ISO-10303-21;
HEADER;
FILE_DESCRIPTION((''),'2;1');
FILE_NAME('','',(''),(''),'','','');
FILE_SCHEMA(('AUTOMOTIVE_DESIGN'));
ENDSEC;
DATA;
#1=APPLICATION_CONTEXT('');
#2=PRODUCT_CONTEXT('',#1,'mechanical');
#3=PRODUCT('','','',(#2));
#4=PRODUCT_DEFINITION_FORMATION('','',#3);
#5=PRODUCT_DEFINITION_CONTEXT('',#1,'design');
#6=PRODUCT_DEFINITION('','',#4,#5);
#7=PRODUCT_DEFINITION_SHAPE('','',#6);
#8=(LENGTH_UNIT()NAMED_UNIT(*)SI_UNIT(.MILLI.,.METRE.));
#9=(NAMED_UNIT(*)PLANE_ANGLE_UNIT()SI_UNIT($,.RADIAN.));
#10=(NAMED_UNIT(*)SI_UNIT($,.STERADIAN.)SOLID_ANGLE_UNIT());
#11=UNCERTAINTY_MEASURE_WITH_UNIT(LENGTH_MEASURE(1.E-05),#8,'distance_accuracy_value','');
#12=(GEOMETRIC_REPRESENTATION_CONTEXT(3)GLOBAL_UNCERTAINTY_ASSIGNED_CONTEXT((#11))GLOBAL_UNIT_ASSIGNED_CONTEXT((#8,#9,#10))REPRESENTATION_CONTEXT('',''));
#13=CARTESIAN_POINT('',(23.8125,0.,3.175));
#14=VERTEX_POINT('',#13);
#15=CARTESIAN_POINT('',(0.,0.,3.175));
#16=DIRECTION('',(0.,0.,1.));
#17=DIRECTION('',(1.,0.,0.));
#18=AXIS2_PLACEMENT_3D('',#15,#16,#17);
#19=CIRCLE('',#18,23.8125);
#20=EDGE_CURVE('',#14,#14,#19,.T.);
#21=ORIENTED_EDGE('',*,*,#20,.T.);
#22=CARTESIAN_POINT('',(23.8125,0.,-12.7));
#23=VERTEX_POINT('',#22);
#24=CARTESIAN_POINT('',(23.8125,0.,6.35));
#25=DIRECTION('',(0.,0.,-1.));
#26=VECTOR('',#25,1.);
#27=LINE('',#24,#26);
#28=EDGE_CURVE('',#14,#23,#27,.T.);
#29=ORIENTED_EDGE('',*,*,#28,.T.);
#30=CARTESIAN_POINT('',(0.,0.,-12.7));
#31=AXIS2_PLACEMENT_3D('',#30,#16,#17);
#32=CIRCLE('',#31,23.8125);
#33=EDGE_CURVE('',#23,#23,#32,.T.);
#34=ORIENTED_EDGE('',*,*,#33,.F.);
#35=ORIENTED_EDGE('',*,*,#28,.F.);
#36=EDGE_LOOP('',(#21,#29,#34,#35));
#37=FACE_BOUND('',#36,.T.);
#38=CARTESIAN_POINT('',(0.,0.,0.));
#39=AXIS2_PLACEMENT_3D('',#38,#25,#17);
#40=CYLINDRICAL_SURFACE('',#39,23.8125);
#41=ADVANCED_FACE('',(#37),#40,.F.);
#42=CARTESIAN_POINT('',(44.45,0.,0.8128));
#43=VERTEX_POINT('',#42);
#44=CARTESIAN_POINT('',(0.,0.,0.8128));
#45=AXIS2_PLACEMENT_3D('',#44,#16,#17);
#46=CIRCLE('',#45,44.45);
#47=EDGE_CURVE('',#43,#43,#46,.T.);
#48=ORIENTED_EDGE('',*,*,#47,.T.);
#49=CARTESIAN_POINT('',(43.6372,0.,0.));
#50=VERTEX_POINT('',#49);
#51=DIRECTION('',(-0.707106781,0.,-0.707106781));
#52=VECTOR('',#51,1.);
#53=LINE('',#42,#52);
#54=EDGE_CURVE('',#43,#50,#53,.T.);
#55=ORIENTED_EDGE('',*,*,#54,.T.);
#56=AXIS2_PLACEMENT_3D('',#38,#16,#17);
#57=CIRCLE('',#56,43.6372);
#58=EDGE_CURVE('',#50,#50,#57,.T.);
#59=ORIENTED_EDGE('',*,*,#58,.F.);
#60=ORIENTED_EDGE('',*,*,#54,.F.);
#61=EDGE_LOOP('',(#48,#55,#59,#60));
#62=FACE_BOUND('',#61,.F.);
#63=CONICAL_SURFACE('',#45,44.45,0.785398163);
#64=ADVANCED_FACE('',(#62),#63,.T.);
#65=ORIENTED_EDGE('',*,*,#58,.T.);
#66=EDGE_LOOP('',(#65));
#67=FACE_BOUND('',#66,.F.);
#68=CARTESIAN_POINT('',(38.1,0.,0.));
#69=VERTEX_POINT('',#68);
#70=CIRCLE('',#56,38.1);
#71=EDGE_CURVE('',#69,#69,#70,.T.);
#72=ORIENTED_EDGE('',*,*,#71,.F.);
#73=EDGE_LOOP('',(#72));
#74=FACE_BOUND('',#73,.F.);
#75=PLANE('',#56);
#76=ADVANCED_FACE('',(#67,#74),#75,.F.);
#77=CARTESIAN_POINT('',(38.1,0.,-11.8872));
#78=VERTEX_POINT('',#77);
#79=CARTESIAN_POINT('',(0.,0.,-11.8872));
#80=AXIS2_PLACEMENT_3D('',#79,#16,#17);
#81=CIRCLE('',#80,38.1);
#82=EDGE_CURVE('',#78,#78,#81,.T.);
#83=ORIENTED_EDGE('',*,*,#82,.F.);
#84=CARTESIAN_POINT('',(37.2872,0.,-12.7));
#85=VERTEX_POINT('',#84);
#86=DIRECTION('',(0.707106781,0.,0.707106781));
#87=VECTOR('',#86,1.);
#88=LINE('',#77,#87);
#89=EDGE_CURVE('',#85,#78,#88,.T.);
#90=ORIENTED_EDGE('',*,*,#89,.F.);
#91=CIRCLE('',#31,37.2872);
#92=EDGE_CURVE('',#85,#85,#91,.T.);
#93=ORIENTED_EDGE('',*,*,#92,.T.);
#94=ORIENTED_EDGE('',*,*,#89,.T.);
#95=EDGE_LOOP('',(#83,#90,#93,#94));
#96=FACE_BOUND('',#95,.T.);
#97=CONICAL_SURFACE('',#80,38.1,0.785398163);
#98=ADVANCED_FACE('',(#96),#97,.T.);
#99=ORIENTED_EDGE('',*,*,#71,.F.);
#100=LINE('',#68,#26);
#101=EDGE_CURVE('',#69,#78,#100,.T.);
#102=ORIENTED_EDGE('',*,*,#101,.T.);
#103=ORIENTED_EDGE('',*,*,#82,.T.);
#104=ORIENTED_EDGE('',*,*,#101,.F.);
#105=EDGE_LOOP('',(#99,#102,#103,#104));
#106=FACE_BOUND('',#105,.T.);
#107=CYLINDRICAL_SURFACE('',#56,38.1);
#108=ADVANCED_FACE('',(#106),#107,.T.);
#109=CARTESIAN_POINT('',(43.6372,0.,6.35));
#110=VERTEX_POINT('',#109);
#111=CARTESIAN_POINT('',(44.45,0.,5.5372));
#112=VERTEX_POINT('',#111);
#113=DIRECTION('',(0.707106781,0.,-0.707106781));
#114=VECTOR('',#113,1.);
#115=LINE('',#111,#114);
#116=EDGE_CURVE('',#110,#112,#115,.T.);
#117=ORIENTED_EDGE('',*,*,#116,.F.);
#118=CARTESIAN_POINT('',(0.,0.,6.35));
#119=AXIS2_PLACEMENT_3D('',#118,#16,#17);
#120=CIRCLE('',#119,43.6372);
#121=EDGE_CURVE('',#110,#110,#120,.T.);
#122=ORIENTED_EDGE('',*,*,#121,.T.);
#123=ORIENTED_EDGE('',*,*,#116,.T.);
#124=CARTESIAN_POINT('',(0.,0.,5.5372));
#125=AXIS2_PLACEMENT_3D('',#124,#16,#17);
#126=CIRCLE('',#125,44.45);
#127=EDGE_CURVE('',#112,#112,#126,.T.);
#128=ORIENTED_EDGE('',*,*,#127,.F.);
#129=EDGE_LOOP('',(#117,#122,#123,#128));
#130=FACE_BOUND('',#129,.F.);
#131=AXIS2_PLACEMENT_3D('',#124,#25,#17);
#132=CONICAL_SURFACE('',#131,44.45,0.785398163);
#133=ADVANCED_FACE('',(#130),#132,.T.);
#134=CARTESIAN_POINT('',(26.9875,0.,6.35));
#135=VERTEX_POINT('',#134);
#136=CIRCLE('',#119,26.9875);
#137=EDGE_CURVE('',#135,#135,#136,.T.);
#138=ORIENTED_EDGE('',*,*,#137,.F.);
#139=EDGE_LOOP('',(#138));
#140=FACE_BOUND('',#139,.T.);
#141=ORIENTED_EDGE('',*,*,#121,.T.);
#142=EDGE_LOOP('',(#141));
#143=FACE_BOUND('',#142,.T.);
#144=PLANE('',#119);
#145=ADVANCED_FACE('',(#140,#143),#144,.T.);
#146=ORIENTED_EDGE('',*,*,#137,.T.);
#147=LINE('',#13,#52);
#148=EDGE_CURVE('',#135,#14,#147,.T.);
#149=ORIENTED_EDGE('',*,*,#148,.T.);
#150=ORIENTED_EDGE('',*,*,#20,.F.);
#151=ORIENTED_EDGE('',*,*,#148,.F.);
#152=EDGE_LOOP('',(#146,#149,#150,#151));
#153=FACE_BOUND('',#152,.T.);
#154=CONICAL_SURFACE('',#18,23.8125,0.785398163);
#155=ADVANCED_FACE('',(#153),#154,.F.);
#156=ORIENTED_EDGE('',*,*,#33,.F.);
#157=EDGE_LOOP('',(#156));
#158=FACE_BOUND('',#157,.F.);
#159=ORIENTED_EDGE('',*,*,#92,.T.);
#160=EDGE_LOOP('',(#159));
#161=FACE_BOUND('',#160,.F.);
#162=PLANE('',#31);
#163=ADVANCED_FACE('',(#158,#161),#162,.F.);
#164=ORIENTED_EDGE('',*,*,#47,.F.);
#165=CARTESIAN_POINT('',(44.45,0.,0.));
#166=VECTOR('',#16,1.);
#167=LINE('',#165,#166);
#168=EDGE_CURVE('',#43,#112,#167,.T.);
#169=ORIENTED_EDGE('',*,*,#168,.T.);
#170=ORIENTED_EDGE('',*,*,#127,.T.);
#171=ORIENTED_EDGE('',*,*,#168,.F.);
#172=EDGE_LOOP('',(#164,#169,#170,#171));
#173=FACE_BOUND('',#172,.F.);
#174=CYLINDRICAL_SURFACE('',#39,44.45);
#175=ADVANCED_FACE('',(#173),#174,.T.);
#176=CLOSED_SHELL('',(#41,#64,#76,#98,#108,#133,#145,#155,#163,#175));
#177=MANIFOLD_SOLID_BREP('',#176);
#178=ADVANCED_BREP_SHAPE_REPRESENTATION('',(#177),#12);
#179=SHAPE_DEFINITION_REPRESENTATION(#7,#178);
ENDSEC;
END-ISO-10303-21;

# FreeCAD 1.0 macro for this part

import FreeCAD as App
import Part
import Sketcher

V = App.Vector
Q = App.Units.Quantity


def edges_at(feature, points):
    """Names of the edges that pass closest to the given points."""
    edges = feature.Shape.Edges
    near = lambda p: min(range(len(edges)), key=lambda i: edges[i].distToShape(Part.Vertex(*p))[0])
    return sorted({f"Edge{near(p) + 1}" for p in points})

doc = App.newDocument("Part")
body = doc.addObject("PartDesign::Body", "Body")

sketch1 = body.newObject("Sketcher::SketchObject", "Sketch")
sketch1.AttachmentSupport = (doc.getObject("XY_Plane"), [""])
sketch1.MapMode = "FlatFace"
sketch1.addGeometry([
    Part.Circle(V(0, 0, 0), V(0, 0, 1), 38.1),
    Part.Circle(V(0, 0, 0), V(0, 0, 1), 23.8125),
], False)
sketch1.addConstraint([
    Sketcher.Constraint("Coincident", 0, 3, -1, 1),
    Sketcher.Constraint("Coincident", 1, 3, -1, 1),
    Sketcher.Constraint("Diameter", 0, Q("3 in")),
    Sketcher.Constraint("Diameter", 1, Q("1.875 in")),
])
pad1 = body.newObject("PartDesign::Pad", "Pad")
pad1.Profile = sketch1
pad1.Length = Q("0.5 in")
pad1.Reversed = True

sketch2 = body.newObject("Sketcher::SketchObject", "Sketch001")
sketch2.AttachmentSupport = (doc.getObject("XY_Plane"), [""])
sketch2.MapMode = "FlatFace"
sketch2.addGeometry([
    Part.Circle(V(0, 0, 0), V(0, 0, 1), 44.45),
    Part.Circle(V(0, 0, 0), V(0, 0, 1), 23.8125),
], False)
sketch2.addConstraint([
    Sketcher.Constraint("Coincident", 0, 3, -1, 1),
    Sketcher.Constraint("Coincident", 1, 3, -1, 1),
    Sketcher.Constraint("Diameter", 0, Q("3.5 in")),
    Sketcher.Constraint("Diameter", 1, Q("1.875 in")),
])
pad2 = body.newObject("PartDesign::Pad", "Pad001")
pad2.Profile = sketch2
pad2.Length = Q("0.25 in")
doc.recompute()

chamfer = body.newObject("PartDesign::Chamfer", "Chamfer")
chamfer.Base = (pad2, edges_at(pad2, [(-23.812, 0, 6.35)]))
chamfer.Size = Q("0.125 in")
doc.recompute()

chamfer2 = body.newObject("PartDesign::Chamfer", "Chamfer001")
chamfer2.Base = (chamfer, edges_at(chamfer, [(-44.45, 0, 6.35), (-44.45, 0, 0), (-38.1, 0, -12.7)]))
chamfer2.Size = Q("0.032 in")

doc.recompute()
